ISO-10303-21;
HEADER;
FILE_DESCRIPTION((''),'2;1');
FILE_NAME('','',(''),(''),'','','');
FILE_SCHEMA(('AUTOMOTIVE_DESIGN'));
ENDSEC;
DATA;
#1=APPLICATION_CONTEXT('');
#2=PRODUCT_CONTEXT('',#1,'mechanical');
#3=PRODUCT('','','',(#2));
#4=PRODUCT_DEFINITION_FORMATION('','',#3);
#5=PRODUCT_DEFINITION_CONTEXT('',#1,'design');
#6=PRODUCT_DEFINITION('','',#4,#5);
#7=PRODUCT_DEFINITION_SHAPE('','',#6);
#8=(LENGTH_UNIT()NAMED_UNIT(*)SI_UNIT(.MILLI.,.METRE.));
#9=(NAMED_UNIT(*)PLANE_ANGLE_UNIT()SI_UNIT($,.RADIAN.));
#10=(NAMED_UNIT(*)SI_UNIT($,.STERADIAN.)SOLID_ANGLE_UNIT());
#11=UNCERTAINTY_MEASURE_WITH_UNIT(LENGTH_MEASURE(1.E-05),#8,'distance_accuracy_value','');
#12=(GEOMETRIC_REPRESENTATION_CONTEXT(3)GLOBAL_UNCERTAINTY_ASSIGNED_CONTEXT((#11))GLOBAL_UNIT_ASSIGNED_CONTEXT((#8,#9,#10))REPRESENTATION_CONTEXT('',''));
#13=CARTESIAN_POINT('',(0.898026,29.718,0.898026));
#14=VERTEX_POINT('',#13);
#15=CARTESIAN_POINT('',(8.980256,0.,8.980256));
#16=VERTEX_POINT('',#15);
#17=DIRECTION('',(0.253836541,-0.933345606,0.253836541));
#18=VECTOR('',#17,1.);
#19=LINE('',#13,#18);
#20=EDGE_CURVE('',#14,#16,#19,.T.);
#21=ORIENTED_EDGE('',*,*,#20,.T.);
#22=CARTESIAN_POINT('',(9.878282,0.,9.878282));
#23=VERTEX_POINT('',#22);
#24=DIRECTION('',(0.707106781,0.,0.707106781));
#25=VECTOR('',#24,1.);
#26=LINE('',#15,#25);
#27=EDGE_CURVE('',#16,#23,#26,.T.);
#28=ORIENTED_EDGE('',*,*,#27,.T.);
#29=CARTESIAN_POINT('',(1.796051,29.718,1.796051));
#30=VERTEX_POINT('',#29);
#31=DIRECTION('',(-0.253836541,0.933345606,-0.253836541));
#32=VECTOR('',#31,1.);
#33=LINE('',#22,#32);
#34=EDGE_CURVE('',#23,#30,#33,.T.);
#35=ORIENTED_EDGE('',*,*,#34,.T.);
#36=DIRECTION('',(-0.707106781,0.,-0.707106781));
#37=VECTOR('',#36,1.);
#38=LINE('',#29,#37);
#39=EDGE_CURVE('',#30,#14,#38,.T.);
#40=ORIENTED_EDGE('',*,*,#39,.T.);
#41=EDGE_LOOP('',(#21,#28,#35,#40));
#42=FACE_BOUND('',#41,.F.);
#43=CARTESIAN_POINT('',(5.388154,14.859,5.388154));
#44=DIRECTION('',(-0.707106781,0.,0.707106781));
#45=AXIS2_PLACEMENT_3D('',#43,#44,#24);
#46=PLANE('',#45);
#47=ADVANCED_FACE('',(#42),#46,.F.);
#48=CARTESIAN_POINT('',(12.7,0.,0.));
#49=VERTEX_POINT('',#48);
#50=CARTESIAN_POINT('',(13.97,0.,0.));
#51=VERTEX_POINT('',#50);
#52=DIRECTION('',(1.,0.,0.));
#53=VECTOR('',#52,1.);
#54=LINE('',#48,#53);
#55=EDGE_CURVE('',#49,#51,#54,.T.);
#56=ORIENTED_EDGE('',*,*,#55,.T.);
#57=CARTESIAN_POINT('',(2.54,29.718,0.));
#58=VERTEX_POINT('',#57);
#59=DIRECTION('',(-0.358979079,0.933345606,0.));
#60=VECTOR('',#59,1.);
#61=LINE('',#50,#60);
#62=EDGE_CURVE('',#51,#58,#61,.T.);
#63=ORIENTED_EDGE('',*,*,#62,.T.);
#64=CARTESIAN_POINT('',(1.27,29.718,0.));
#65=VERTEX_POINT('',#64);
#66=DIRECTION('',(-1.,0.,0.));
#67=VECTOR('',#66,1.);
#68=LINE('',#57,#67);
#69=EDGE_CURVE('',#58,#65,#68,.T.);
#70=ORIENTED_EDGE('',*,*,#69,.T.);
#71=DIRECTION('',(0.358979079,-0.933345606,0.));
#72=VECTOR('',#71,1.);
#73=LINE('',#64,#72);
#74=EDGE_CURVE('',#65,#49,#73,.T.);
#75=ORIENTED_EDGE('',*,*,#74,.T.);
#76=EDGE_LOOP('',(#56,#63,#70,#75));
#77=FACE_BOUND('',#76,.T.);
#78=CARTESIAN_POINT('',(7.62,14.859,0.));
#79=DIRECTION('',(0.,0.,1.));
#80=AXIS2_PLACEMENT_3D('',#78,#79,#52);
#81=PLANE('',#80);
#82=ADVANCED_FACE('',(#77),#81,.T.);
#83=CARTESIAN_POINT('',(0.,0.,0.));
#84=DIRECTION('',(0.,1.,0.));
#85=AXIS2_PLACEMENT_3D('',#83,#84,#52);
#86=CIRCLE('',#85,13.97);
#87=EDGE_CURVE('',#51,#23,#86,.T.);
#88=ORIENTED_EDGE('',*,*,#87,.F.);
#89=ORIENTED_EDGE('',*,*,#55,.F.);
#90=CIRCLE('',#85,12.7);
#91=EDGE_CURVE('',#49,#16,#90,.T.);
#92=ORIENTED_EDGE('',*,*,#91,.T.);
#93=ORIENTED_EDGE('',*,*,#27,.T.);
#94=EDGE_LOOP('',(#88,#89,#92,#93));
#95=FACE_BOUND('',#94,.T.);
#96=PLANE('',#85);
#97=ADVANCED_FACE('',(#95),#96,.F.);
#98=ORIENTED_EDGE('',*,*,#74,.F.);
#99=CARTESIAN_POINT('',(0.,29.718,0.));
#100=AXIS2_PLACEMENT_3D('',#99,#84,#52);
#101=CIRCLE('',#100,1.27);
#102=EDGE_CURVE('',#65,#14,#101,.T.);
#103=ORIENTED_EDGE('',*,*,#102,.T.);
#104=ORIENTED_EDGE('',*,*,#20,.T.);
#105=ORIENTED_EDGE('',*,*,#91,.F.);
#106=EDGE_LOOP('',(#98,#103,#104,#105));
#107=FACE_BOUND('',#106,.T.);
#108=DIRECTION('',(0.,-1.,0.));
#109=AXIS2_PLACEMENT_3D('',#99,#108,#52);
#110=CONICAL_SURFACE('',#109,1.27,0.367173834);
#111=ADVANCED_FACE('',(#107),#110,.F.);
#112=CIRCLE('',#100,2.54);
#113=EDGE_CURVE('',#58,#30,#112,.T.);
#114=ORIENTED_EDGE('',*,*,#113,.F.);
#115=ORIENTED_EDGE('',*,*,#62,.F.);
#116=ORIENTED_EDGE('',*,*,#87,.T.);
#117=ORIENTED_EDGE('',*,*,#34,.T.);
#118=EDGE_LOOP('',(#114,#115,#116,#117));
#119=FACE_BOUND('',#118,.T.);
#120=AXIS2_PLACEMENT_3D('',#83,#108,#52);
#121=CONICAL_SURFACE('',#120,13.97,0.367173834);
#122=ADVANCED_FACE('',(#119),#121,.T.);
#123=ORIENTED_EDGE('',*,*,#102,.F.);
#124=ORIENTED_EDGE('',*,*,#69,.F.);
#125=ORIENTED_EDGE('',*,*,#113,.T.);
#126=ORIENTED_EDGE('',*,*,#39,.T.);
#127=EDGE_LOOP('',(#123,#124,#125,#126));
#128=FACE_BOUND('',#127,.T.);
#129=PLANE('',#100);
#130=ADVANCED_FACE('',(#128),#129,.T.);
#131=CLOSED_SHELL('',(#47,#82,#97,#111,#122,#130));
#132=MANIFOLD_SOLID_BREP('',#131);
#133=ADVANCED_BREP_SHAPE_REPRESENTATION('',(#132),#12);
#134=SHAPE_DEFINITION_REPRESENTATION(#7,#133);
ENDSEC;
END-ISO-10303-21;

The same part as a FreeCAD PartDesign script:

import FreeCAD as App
import Part
import Sketcher
Q = App.Units.Quantity


def add_polygon(sketch, points):
    """Adds a closed chain of lines whose ends are joined by coincident constraints."""
    first, n = sketch.GeometryCount, len(points)
    for a, b in zip(points, points[1:] + points[:1]):
        sketch.addGeometry(Part.LineSegment(App.Vector(*a, 0), App.Vector(*b, 0)), False)
    for i in range(n):
        sketch.addConstraint(Sketcher.Constraint("Coincident", first + i, 2, first + (i + 1) % n, 1))

doc = App.newDocument("Part")
body = doc.addObject("PartDesign::Body", "Body")

sketch1 = body.newObject("Sketcher::SketchObject", "Sketch")
sketch1.AttachmentSupport = (doc.getObject("XY_Plane"), [""])
sketch1.MapMode = "FlatFace"
add_polygon(sketch1, [(2.54, 29.718), (1.27, 29.718), (12.7, 0), (13.97, 0)])
sketch1.addConstraint(Sketcher.Constraint("Horizontal", 0))
sketch1.addConstraint(Sketcher.Constraint("Horizontal", 2))
sketch1.addConstraint(Sketcher.Constraint("PointOnObject", 1, 2, -1))
sketch1.addConstraint(Sketcher.Constraint("Parallel", 1, 3))
sketch1.addConstraint(Sketcher.Constraint("DistanceX", 0, 2, 0, 1, Q("0.05 in")))
sketch1.addConstraint(Sketcher.Constraint("DistanceX", -1, 1, 1, 2, Q("0.5 in")))
sketch1.addConstraint(Sketcher.Constraint("DistanceX", -1, 1, 3, 2, Q("0.1 in")))
sketch1.addConstraint(Sketcher.Constraint("DistanceY", -1, 1, 0, 2, Q("1.17 in")))
revolution = body.newObject("PartDesign::Revolution", "Revolution")
revolution.Profile = sketch1
revolution.ReferenceAxis = (sketch1, ["V_Axis"])
revolution.Angle = 315

doc.recompute()
